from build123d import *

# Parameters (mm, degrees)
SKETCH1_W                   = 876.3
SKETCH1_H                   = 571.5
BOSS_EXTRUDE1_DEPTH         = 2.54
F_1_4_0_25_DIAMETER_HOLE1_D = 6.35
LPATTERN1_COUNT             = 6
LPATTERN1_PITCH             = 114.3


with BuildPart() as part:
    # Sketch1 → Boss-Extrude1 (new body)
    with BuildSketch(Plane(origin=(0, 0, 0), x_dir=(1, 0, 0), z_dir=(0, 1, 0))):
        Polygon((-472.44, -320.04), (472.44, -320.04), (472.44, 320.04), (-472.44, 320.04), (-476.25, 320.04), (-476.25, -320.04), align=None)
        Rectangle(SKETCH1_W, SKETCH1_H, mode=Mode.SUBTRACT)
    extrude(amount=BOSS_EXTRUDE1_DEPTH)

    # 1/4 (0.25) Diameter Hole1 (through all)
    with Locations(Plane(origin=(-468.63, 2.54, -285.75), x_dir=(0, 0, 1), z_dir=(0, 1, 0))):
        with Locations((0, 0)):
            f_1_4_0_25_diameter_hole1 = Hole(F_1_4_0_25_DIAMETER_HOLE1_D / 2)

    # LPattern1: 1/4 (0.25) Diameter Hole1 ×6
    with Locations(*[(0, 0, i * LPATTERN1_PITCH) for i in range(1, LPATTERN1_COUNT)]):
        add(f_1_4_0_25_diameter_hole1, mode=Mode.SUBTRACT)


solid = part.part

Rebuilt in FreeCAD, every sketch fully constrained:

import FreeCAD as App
import Part
import Sketcher
Q = App.Units.Quantity

doc = App.newDocument("Part")
body = doc.addObject("PartDesign::Body", "Body")

# Sketch on XZ plane
sketch1 = doc.addObject("Sketcher::SketchObject", "Sketch")
body.addObject(sketch1)
sketch1.AttachmentSupport = (doc.XZ_Plane, [""])
sketch1.MapMode = "FlatFace"
sketch1.addGeometry([
    Part.LineSegment(App.Vector(472.44, 320.04, 0), App.Vector(472.44, -320.04, 0)),  # 0
    Part.LineSegment(App.Vector(472.44, -320.04, 0), App.Vector(-476.25, -320.04, 0)),  # 1
    Part.LineSegment(App.Vector(-476.25, -320.04, 0), App.Vector(-476.25, 320.04, 0)),  # 2
    Part.LineSegment(App.Vector(-476.25, 320.04, 0), App.Vector(472.44, 320.04, 0)),  # 3
    Part.LineSegment(App.Vector(438.15, 285.75, 0), App.Vector(-438.15, 285.75, 0)),  # 4
    Part.LineSegment(App.Vector(-438.15, 285.75, 0), App.Vector(-438.15, -285.75, 0)),  # 5
    Part.LineSegment(App.Vector(-438.15, -285.75, 0), App.Vector(438.15, -285.75, 0)),  # 6
    Part.LineSegment(App.Vector(438.15, -285.75, 0), App.Vector(438.15, 285.75, 0)),  # 7
], False)
sketch1.addConstraint([
    Sketcher.Constraint("Coincident", 0, 2, 1, 1),
    Sketcher.Constraint("Coincident", 1, 2, 2, 1),
    Sketcher.Constraint("Coincident", 2, 2, 3, 1),
    Sketcher.Constraint("Coincident", 3, 2, 0, 1),
    Sketcher.Constraint("Coincident", 4, 2, 5, 1),
    Sketcher.Constraint("Coincident", 5, 2, 6, 1),
    Sketcher.Constraint("Coincident", 6, 2, 7, 1),
    Sketcher.Constraint("Coincident", 7, 2, 4, 1),
    Sketcher.Constraint("Vertical", 0),
    Sketcher.Constraint("Horizontal", 1),
    Sketcher.Constraint("Vertical", 2),
    Sketcher.Constraint("Horizontal", 3),
    Sketcher.Constraint("Horizontal", 4),
    Sketcher.Constraint("Vertical", 5),
    Sketcher.Constraint("Horizontal", 6),
    Sketcher.Constraint("Vertical", 7),
    Sketcher.Constraint("Symmetric", 4, 2, 6, 2, -1, 1),
    Sketcher.Constraint("DistanceX", 4, 2, 4, 1, Q("34.5 in")),
    Sketcher.Constraint("DistanceY", 0, 2, 0, 1, Q("25.2 in")),
    Sketcher.Constraint("DistanceY", 5, 2, 5, 1, Q("22.5 in")),
    Sketcher.Constraint("DistanceX", 1, 2, 6, 2, Q("36 in")),
    Sketcher.Constraint("DistanceX", 1, 2, 1, 1, Q("37.35 in")),
    Sketcher.Constraint("DistanceY", 0, 2, -1, 1, Q("12.6 in")),
])
pad1 = doc.addObject("PartDesign::Pad", "Pad")
body.addObject(pad1)
pad1.Profile = sketch1
pad1.Length = Q("0.1 in")
pad1.Reversed = True

# Sketch on XZ plane
sketch2 = doc.addObject("Sketcher::SketchObject", "Sketch001")
body.addObject(sketch2)
sketch2.AttachmentSupport = (doc.XZ_Plane, [""])
sketch2.MapMode = "FlatFace"
sketch2.AttachmentOffset = App.Placement(App.Vector(0, 0, -0.1 * 25.4), App.Rotation())
sketch2.addGeometry(Part.Circle(App.Vector(-468.63, -285.75, 0), App.Vector(0, 0, 1), 3.175), False)
sketch2.addConstraint([
    Sketcher.Constraint("Diameter", 0, Q("0.25 in")),
    Sketcher.Constraint("DistanceX", 0, 3, -1, 1, Q("18.45 in")),
    Sketcher.Constraint("DistanceY", 0, 3, -1, 1, Q("11.25 in")),
])
doc.recompute()
hole = doc.addObject("PartDesign::Hole", "Hole")
body.addObject(hole)
hole.Profile = sketch2
hole.ThreadType = "None"
hole.Diameter = Q("0.25 in")
hole.DepthType = "ThroughAll"
hole.Reversed = True
doc.recompute()

linearpattern = doc.addObject("PartDesign::LinearPattern", "LinearPattern")
body.addObject(linearpattern)
linearpattern.Originals = [hole]
linearpattern.Direction = (doc.Z_Axis, [""])
linearpattern.Mode = "offset"
linearpattern.Offset = Q("4.5 in")
linearpattern.Occurrences = 6
body.Tip = linearpattern

doc.recompute()
